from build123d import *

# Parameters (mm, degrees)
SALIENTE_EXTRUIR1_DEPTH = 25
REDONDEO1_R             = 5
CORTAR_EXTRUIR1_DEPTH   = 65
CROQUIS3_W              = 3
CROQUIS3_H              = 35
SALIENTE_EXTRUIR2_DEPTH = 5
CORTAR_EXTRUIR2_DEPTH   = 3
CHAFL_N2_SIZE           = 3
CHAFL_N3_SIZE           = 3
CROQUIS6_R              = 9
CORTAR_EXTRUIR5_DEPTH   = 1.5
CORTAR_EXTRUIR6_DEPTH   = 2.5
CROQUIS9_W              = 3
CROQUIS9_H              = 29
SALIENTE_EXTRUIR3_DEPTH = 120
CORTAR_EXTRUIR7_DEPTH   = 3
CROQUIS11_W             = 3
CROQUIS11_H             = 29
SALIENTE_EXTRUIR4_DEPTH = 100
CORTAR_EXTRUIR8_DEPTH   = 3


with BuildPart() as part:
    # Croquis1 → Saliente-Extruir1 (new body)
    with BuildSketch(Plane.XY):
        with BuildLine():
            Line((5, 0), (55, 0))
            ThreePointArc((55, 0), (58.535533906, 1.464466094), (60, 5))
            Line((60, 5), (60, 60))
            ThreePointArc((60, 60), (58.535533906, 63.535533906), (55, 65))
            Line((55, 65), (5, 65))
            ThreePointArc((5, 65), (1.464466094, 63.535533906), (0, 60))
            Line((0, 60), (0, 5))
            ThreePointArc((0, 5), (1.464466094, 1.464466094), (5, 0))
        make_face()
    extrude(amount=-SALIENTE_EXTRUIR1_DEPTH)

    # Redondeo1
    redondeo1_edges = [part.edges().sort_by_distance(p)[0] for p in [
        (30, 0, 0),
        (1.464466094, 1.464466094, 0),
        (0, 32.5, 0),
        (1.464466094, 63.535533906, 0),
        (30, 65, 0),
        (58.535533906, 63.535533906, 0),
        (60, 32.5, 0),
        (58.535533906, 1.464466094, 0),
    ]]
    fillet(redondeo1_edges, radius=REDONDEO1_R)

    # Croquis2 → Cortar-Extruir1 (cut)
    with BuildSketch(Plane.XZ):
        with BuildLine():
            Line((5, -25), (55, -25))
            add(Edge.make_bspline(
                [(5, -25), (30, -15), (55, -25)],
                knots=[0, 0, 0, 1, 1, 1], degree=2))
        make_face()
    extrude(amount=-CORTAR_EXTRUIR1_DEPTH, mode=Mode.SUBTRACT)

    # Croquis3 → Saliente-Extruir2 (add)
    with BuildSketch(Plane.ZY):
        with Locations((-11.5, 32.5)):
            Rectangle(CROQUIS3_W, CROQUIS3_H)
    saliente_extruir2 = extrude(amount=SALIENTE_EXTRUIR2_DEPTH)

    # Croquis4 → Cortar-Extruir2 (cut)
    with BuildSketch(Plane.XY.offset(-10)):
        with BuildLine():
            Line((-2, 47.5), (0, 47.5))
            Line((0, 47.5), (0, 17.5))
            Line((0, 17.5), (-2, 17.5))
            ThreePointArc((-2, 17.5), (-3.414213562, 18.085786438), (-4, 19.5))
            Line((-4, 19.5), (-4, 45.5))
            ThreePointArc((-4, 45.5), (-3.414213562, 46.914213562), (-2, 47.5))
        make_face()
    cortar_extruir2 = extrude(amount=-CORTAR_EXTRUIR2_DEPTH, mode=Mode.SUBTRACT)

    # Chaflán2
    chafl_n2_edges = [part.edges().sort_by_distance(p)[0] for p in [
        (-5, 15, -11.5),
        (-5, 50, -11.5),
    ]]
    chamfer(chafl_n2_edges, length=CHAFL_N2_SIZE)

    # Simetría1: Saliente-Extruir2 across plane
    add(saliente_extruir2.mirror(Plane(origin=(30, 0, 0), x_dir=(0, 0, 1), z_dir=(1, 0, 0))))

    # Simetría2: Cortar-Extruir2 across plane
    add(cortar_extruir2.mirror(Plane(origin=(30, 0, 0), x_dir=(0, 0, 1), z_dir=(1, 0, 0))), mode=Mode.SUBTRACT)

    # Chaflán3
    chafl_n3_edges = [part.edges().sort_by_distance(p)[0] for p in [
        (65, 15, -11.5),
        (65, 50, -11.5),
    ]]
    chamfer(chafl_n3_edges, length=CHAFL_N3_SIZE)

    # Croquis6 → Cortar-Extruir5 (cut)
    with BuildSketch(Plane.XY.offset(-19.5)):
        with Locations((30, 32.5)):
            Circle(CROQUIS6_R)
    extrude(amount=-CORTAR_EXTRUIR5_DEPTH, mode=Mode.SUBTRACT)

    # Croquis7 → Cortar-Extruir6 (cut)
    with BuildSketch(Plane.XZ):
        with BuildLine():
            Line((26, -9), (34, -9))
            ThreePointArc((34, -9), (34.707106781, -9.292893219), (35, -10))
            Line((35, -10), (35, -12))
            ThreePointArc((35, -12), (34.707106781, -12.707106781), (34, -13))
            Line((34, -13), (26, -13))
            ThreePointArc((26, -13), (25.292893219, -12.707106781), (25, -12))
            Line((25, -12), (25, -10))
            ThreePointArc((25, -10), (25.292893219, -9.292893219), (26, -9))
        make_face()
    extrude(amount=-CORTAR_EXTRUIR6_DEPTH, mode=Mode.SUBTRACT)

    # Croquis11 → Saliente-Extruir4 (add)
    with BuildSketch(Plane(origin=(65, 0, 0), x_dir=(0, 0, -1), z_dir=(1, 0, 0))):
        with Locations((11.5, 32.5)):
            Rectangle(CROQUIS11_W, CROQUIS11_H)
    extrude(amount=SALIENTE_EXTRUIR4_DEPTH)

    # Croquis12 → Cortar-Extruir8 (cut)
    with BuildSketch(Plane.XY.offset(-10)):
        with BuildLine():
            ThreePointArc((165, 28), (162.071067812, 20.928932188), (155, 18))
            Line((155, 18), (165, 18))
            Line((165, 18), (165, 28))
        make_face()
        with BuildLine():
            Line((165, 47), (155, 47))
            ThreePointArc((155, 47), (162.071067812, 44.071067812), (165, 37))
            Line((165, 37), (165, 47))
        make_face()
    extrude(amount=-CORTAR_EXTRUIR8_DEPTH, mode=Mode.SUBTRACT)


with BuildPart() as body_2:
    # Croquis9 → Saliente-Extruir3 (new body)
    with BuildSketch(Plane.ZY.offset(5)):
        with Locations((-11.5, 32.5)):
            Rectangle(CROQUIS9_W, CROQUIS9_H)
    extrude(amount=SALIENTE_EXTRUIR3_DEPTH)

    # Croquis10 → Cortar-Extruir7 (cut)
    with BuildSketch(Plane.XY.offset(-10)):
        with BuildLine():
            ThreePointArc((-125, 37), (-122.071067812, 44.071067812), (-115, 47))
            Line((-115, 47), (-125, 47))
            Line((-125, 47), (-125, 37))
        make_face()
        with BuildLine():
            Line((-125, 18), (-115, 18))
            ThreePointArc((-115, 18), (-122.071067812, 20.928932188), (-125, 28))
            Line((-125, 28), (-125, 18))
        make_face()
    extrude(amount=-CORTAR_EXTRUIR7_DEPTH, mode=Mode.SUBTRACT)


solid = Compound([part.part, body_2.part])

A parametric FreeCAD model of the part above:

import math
import FreeCAD as App
import Part
import Sketcher


def edges_at(feature, points):
    """Names of the edges that pass closest to the given points."""
    edges = feature.Shape.Edges
    near = lambda p: min(range(len(edges)), key=lambda i: edges[i].distToShape(Part.Vertex(*p))[0])
    return sorted({f"Edge{near(p) + 1}" for p in points})

doc = App.newDocument("Part")
body = doc.addObject("PartDesign::Body", "Body")

# Sketch on XY plane
sketch1 = doc.addObject("Sketcher::SketchObject", "Sketch")
body.addObject(sketch1)
sketch1.AttachmentSupport = (doc.XY_Plane, [""])
sketch1.MapMode = "FlatFace"
sketch1.addGeometry([
    Part.LineSegment(App.Vector(5, 0, 0), App.Vector(55, 0, 0)),  # 0
    Part.ArcOfCircle(Part.Circle(App.Vector(55, 5, 0), App.Vector(0, 0, 1), 5), math.radians(-90), math.radians(0)),  # 1
    Part.LineSegment(App.Vector(60, 5, 0), App.Vector(60, 60, 0)),  # 2
    Part.ArcOfCircle(Part.Circle(App.Vector(55, 60, 0), App.Vector(0, 0, 1), 5), math.radians(0), math.radians(90)),  # 3
    Part.LineSegment(App.Vector(55, 65, 0), App.Vector(5, 65, 0)),  # 4
    Part.ArcOfCircle(Part.Circle(App.Vector(5, 60, 0), App.Vector(0, 0, 1), 5), math.radians(90), math.radians(180)),  # 5
    Part.LineSegment(App.Vector(0, 60, 0), App.Vector(0, 5, 0)),  # 6
    Part.ArcOfCircle(Part.Circle(App.Vector(5, 5, 0), App.Vector(0, 0, 1), 5), math.radians(180), math.radians(270)),  # 7
], False)
sketch1.addConstraint([
    Sketcher.Constraint("Tangent", 0, 2, 1, 1),
    Sketcher.Constraint("Tangent", 1, 2, 2, 1),
    Sketcher.Constraint("Tangent", 2, 2, 3, 1),
    Sketcher.Constraint("Tangent", 3, 2, 4, 1),
    Sketcher.Constraint("Tangent", 4, 2, 5, 1),
    Sketcher.Constraint("Tangent", 5, 2, 6, 1),
    Sketcher.Constraint("Tangent", 6, 2, 7, 1),
    Sketcher.Constraint("Tangent", 7, 2, 0, 1),
    Sketcher.Constraint("Horizontal", 0),
    Sketcher.Constraint("Vertical", 2),
    Sketcher.Constraint("Horizontal", 4),
    Sketcher.Constraint("Vertical", 6),
    Sketcher.Constraint("Equal", 1, 3),
    Sketcher.Constraint("Equal", 3, 5),
    Sketcher.Constraint("Equal", 5, 7),
    Sketcher.Constraint("PointOnObject", 0, 2, -1),
    Sketcher.Constraint("PointOnObject", 5, 2, -2),
    Sketcher.Constraint("Radius", 1, 5.0),
    Sketcher.Constraint("DistanceX", 0, 1, 0, 2, 50.0),
    Sketcher.Constraint("DistanceY", 2, 1, 2, 2, 55.0),
])
pad1 = doc.addObject("PartDesign::Pad", "Pad")
body.addObject(pad1)
pad1.Profile = sketch1
pad1.Length = 25
pad1.Reversed = True
doc.recompute()

fillet = doc.addObject("PartDesign::Fillet", "Fillet")
body.addObject(fillet)
fillet.Base = (pad1, edges_at(pad1, [
    (30, 0, 0),
    (1.464, 1.464, 0),
    (0, 32.5, 0),
    (1.464, 63.536, 0),
    (30, 65, 0),
    (58.536, 63.536, 0),
    (60, 32.5, 0),
    (58.536, 1.464, 0),
]))
fillet.Radius = 5

# Sketch on XZ plane
sketch2 = doc.addObject("Sketcher::SketchObject", "Sketch001")
body.addObject(sketch2)
sketch2.AttachmentSupport = (doc.XZ_Plane, [""])
sketch2.MapMode = "FlatFace"
sketch2.addGeometry([
    Part.LineSegment(App.Vector(5, -25, 0), App.Vector(55, -25, 0)),
    Part.BSplineCurve([App.Vector(5, -25, 0), App.Vector(30, -15, 0), App.Vector(55, -25, 0)], [3, 3], [0, 1], False, 2, [1, 1, 1], False),
], False)
sketch2.addConstraint([
    Sketcher.Constraint("Block", 1),
    Sketcher.Constraint("Coincident", 0, 1, 1, 1),
    Sketcher.Constraint("Coincident", 1, 2, 0, 2),
])
pocket1 = doc.addObject("PartDesign::Pocket", "Pocket")
body.addObject(pocket1)
pocket1.Profile = sketch2
pocket1.Length = 65

# Sketch on YZ plane
sketch3 = doc.addObject("Sketcher::SketchObject", "Sketch002")
body.addObject(sketch3)
sketch3.AttachmentSupport = (doc.YZ_Plane, [""])
sketch3.MapMode = "FlatFace"
sketch3.addGeometry([
    Part.LineSegment(App.Vector(50, -13, 0), App.Vector(15, -13, 0)),
    Part.LineSegment(App.Vector(15, -13, 0), App.Vector(15, -10, 0)),
    Part.LineSegment(App.Vector(15, -10, 0), App.Vector(50, -10, 0)),
    Part.LineSegment(App.Vector(50, -10, 0), App.Vector(50, -13, 0)),
], False)
sketch3.addConstraint([
    Sketcher.Constraint("Coincident", 0, 2, 1, 1),
    Sketcher.Constraint("Coincident", 1, 2, 2, 1),
    Sketcher.Constraint("Coincident", 2, 2, 3, 1),
    Sketcher.Constraint("Coincident", 3, 2, 0, 1),
    Sketcher.Constraint("Horizontal", 0),
    Sketcher.Constraint("Vertical", 1),
    Sketcher.Constraint("Horizontal", 2),
    Sketcher.Constraint("Vertical", 3),
    Sketcher.Constraint("DistanceX", 0, 2, 0, 1, 35.0),
    Sketcher.Constraint("DistanceY", 1, 1, 1, 2, 3.0),
    Sketcher.Constraint("DistanceX", -1, 1, 0, 2, 15.0),
    Sketcher.Constraint("DistanceY", 0, 2, -1, 1, 13.0),
])
pad2 = doc.addObject("PartDesign::Pad", "Pad001")
body.addObject(pad2)
pad2.Profile = sketch3
pad2.Length = 5
pad2.Reversed = True

# Sketch on XY plane
sketch4 = doc.addObject("Sketcher::SketchObject", "Sketch003")
body.addObject(sketch4)
sketch4.AttachmentSupport = (doc.XY_Plane, [""])
sketch4.MapMode = "FlatFace"
sketch4.AttachmentOffset = App.Placement(App.Vector(0, 0, -10), App.Rotation())
sketch4.addGeometry([
    Part.LineSegment(App.Vector(0, 47.5, 0), App.Vector(-2, 47.5, 0)),  # 0
    Part.ArcOfCircle(Part.Circle(App.Vector(-2, 45.5, 0), App.Vector(0, 0, 1), 2), math.radians(90), math.radians(180)),  # 1
    Part.LineSegment(App.Vector(-4, 45.5, 0), App.Vector(-4, 19.5, 0)),  # 2
    Part.ArcOfCircle(Part.Circle(App.Vector(-2, 19.5, 0), App.Vector(0, 0, 1), 2), math.radians(-180), math.radians(-90)),  # 3
    Part.LineSegment(App.Vector(-2, 17.5, 0), App.Vector(0, 17.5, 0)),  # 4
    Part.LineSegment(App.Vector(0, 17.5, 0), App.Vector(0, 47.5, 0)),  # 5
], False)
sketch4.addConstraint([
    Sketcher.Constraint("Tangent", 0, 2, 1, 1),
    Sketcher.Constraint("Tangent", 1, 2, 2, 1),
    Sketcher.Constraint("Tangent", 2, 2, 3, 1),
    Sketcher.Constraint("Tangent", 3, 2, 4, 1),
    Sketcher.Constraint("Coincident", 4, 2, 5, 1),
    Sketcher.Constraint("Coincident", 5, 2, 0, 1),
    Sketcher.Constraint("Horizontal", 0),
    Sketcher.Constraint("Vertical", 2),
    Sketcher.Constraint("Horizontal", 4),
    Sketcher.Constraint("Vertical", 5),
    Sketcher.Constraint("Equal", 1, 3),
    Sketcher.Constraint("PointOnObject", 4, 2, -2),
    Sketcher.Constraint("Radius", 1, 2.0),
    Sketcher.Constraint("DistanceX", 0, 2, 0, 1, 2.0),
    Sketcher.Constraint("DistanceY", 2, 2, 2, 1, 26.0),
    Sketcher.Constraint("DistanceY", -1, 1, 1, 3, 45.5),
])
pocket2 = doc.addObject("PartDesign::Pocket", "Pocket001")
body.addObject(pocket2)
pocket2.Profile = sketch4
pocket2.Length = 3
doc.recompute()

chamfer = doc.addObject("PartDesign::Chamfer", "Chamfer")
body.addObject(chamfer)
chamfer.Base = (pocket2, edges_at(pocket2, [(-5, 15, -11.5), (-5, 50, -11.5)]))
chamfer.Size = 3
doc.recompute()

datumplane = doc.addObject("PartDesign::Plane", "DatumPlane")
body.addObject(datumplane)
datumplane.AttachmentSupport = (doc.YZ_Plane, [""])
datumplane.MapMode = "FlatFace"
datumplane.AttachmentOffset = App.Placement(App.Vector(0, 0, 30), App.Rotation())
mirrored = doc.addObject("PartDesign::Mirrored", "Mirrored")
body.addObject(mirrored)
mirrored.Originals = [pad2]
mirrored.MirrorPlane = (datumplane, [""])
body.Tip = mirrored
doc.recompute()

datumplane2 = doc.addObject("PartDesign::Plane", "DatumPlane001")
body.addObject(datumplane2)
datumplane2.AttachmentSupport = (doc.YZ_Plane, [""])
datumplane2.MapMode = "FlatFace"
datumplane2.AttachmentOffset = App.Placement(App.Vector(0, 0, 30), App.Rotation())
mirrored2 = doc.addObject("PartDesign::Mirrored", "Mirrored001")
body.addObject(mirrored2)
mirrored2.Originals = [pocket2]
mirrored2.MirrorPlane = (datumplane2, [""])
body.Tip = mirrored2
doc.recompute()

chamfer2 = doc.addObject("PartDesign::Chamfer", "Chamfer001")
body.addObject(chamfer2)
chamfer2.Base = (mirrored2, edges_at(mirrored2, [(65, 15, -11.5), (65, 50, -11.5)]))
chamfer2.Size = 3

# Sketch on XY plane
sketch5 = doc.addObject("Sketcher::SketchObject", "Sketch004")
body.addObject(sketch5)
sketch5.AttachmentSupport = (doc.XY_Plane, [""])
sketch5.MapMode = "FlatFace"
sketch5.AttachmentOffset = App.Placement(App.Vector(0, 0, -19.5), App.Rotation())
sketch5.addGeometry(Part.Circle(App.Vector(30, 32, 0), App.Vector(0, 0, 1), 9), False)
sketch5.addConstraint([
    Sketcher.Constraint("Diameter", 0, 18.0),
    Sketcher.Constraint("DistanceX", -1, 1, 0, 3, 30.0),
    Sketcher.Constraint("DistanceY", -1, 1, 0, 3, 32.5),
])
pocket3 = doc.addObject("PartDesign::Pocket", "Pocket002")
body.addObject(pocket3)
pocket3.Profile = sketch5
pocket3.Length = 1.5

# Sketch on XZ plane
sketch6 = doc.addObject("Sketcher::SketchObject", "Sketch005")
body.addObject(sketch6)
sketch6.AttachmentSupport = (doc.XZ_Plane, [""])
sketch6.MapMode = "FlatFace"
sketch6.addGeometry([
    Part.LineSegment(App.Vector(34, -9, 0), App.Vector(26, -9, 0)),  # 0
    Part.ArcOfCircle(Part.Circle(App.Vector(26, -10, 0), App.Vector(0, 0, 1), 1), math.radians(90), math.radians(180)),  # 1
    Part.LineSegment(App.Vector(25, -10, 0), App.Vector(25, -12, 0)),  # 2
    Part.ArcOfCircle(Part.Circle(App.Vector(26, -12, 0), App.Vector(0, 0, 1), 1), math.radians(-180), math.radians(-90)),  # 3
    Part.LineSegment(App.Vector(26, -13, 0), App.Vector(34, -13, 0)),  # 4
    Part.ArcOfCircle(Part.Circle(App.Vector(34, -12, 0), App.Vector(0, 0, 1), 1), math.radians(-90), math.radians(0)),  # 5
    Part.LineSegment(App.Vector(35, -12, 0), App.Vector(35, -10, 0)),  # 6
    Part.ArcOfCircle(Part.Circle(App.Vector(34, -10, 0), App.Vector(0, 0, 1), 1), math.radians(0), math.radians(90)),  # 7
], False)
sketch6.addConstraint([
    Sketcher.Constraint("Tangent", 0, 2, 1, 1),
    Sketcher.Constraint("Tangent", 1, 2, 2, 1),
    Sketcher.Constraint("Tangent", 2, 2, 3, 1),
    Sketcher.Constraint("Tangent", 3, 2, 4, 1),
    Sketcher.Constraint("Tangent", 4, 2, 5, 1),
    Sketcher.Constraint("Tangent", 5, 2, 6, 1),
    Sketcher.Constraint("Tangent", 6, 2, 7, 1),
    Sketcher.Constraint("Tangent", 7, 2, 0, 1),
    Sketcher.Constraint("Horizontal", 0),
    Sketcher.Constraint("Vertical", 2),
    Sketcher.Constraint("Horizontal", 4),
    Sketcher.Constraint("Vertical", 6),
    Sketcher.Constraint("Equal", 1, 3),
    Sketcher.Constraint("Equal", 3, 5),
    Sketcher.Constraint("Equal", 5, 7),
    Sketcher.Constraint("Radius", 1, 1.0),
    Sketcher.Constraint("DistanceX", 0, 2, 0, 1, 8.0),
    Sketcher.Constraint("DistanceY", 2, 2, 2, 1, 2.0),
    Sketcher.Constraint("DistanceX", -1, 1, 1, 3, 26.0),
    Sketcher.Constraint("DistanceY", 1, 3, -1, 1, 10.0),
])
pocket4 = doc.addObject("PartDesign::Pocket", "Pocket003")
body.addObject(pocket4)
pocket4.Profile = sketch6
pocket4.Length = 2.5

# Sketch on YZ plane
sketch7 = doc.addObject("Sketcher::SketchObject", "Sketch006")
body.addObject(sketch7)
sketch7.AttachmentSupport = (doc.YZ_Plane, [""])
sketch7.MapMode = "FlatFace"
sketch7.AttachmentOffset = App.Placement(App.Vector(0, 0, 65), App.Rotation())
sketch7.addGeometry([
    Part.LineSegment(App.Vector(47, -10, 0), App.Vector(18, -10, 0)),
    Part.LineSegment(App.Vector(18, -10, 0), App.Vector(18, -13, 0)),
    Part.LineSegment(App.Vector(18, -13, 0), App.Vector(47, -13, 0)),
    Part.LineSegment(App.Vector(47, -13, 0), App.Vector(47, -10, 0)),
], False)
sketch7.addConstraint([
    Sketcher.Constraint("Coincident", 0, 2, 1, 1),
    Sketcher.Constraint("Coincident", 1, 2, 2, 1),
    Sketcher.Constraint("Coincident", 2, 2, 3, 1),
    Sketcher.Constraint("Coincident", 3, 2, 0, 1),
    Sketcher.Constraint("Horizontal", 0),
    Sketcher.Constraint("Vertical", 1),
    Sketcher.Constraint("Horizontal", 2),
    Sketcher.Constraint("Vertical", 3),
    Sketcher.Constraint("DistanceX", 0, 2, 0, 1, 29.0),
    Sketcher.Constraint("DistanceY", 1, 2, 1, 1, 3.0),
    Sketcher.Constraint("DistanceX", -1, 1, 0, 2, 18.0),
    Sketcher.Constraint("DistanceY", 0, 2, -1, 1, 10.0),
])
pad3 = doc.addObject("PartDesign::Pad", "Pad002")
body.addObject(pad3)
pad3.Profile = sketch7
pad3.Length = 100

# Sketch on XY plane
sketch8 = doc.addObject("Sketcher::SketchObject", "Sketch007")
body.addObject(sketch8)
sketch8.AttachmentSupport = (doc.XY_Plane, [""])
sketch8.MapMode = "FlatFace"
sketch8.AttachmentOffset = App.Placement(App.Vector(0, 0, -10), App.Rotation())
sketch8.addGeometry([
    Part.ArcOfCircle(Part.Circle(App.Vector(155, 28, 0), App.Vector(0, 0, 1), 10), math.radians(-90), math.radians(0)),  # 0
    Part.LineSegment(App.Vector(155, 18, 0), App.Vector(165, 18, 0)),  # 1
    Part.LineSegment(App.Vector(165, 18, 0), App.Vector(165, 28, 0)),  # 2
    Part.LineSegment(App.Vector(165, 47, 0), App.Vector(155, 47, 0)),  # 3
    Part.ArcOfCircle(Part.Circle(App.Vector(155, 37, 0), App.Vector(0, 0, 1), 10), math.radians(0), math.radians(90)),  # 4
    Part.LineSegment(App.Vector(165, 37, 0), App.Vector(165, 47, 0)),  # 5
], False)
sketch8.addConstraint([
    Sketcher.Constraint("Tangent", 0, 1, 1, 1),
    Sketcher.Constraint("Coincident", 1, 2, 2, 1),
    Sketcher.Constraint("Tangent", 2, 2, 0, 2),
    Sketcher.Constraint("Tangent", 3, 2, 4, 2),
    Sketcher.Constraint("Tangent", 4, 1, 5, 1),
    Sketcher.Constraint("Coincident", 5, 2, 3, 1),
    Sketcher.Constraint("Horizontal", 1),
    Sketcher.Constraint("Vertical", 2),
    Sketcher.Constraint("Horizontal", 3),
    Sketcher.Constraint("Vertical", 5),
    Sketcher.Constraint("Equal", 0, 4),
    Sketcher.Constraint("Vertical", 0, 3, 4, 3),
    Sketcher.Constraint("Radius", 0, 10.0),
    Sketcher.Constraint("DistanceX", -1, 1, 0, 3, 155.0),
    Sketcher.Constraint("DistanceY", -1, 1, 0, 3, 28.0),
    Sketcher.Constraint("DistanceY", -1, 1, 4, 3, 37.0),
])
pocket5 = doc.addObject("PartDesign::Pocket", "Pocket004")
body.addObject(pocket5)
pocket5.Profile = sketch8
pocket5.Length = 3
body2 = doc.addObject("PartDesign::Body", "Body001")

# Sketch on YZ plane
sketch9 = doc.addObject("Sketcher::SketchObject", "Sketch008")
body2.addObject(sketch9)
sketch9.AttachmentSupport = (doc.getObject("YZ_Plane001"), [""])
sketch9.MapMode = "FlatFace"
sketch9.AttachmentOffset = App.Placement(App.Vector(0, 0, -5), App.Rotation())
sketch9.addGeometry([
    Part.LineSegment(App.Vector(47, -13, 0), App.Vector(18, -13, 0)),
    Part.LineSegment(App.Vector(18, -13, 0), App.Vector(18, -10, 0)),
    Part.LineSegment(App.Vector(18, -10, 0), App.Vector(47, -10, 0)),
    Part.LineSegment(App.Vector(47, -10, 0), App.Vector(47, -13, 0)),
], False)
sketch9.addConstraint([
    Sketcher.Constraint("Coincident", 0, 2, 1, 1),
    Sketcher.Constraint("Coincident", 1, 2, 2, 1),
    Sketcher.Constraint("Coincident", 2, 2, 3, 1),
    Sketcher.Constraint("Coincident", 3, 2, 0, 1),
    Sketcher.Constraint("Horizontal", 0),
    Sketcher.Constraint("Vertical", 1),
    Sketcher.Constraint("Horizontal", 2),
    Sketcher.Constraint("Vertical", 3),
    Sketcher.Constraint("DistanceX", 0, 2, 0, 1, 29.0),
    Sketcher.Constraint("DistanceY", 1, 1, 1, 2, 3.0),
    Sketcher.Constraint("DistanceX", -1, 1, 0, 2, 18.0),
    Sketcher.Constraint("DistanceY", 0, 2, -1, 1, 13.0),
])
pad4 = doc.addObject("PartDesign::Pad", "Pad003")
body2.addObject(pad4)
pad4.Profile = sketch9
pad4.Length = 120
pad4.Reversed = True

# Sketch on XY plane
sketch10 = doc.addObject("Sketcher::SketchObject", "Sketch009")
body2.addObject(sketch10)
sketch10.AttachmentSupport = (doc.getObject("XY_Plane001"), [""])
sketch10.MapMode = "FlatFace"
sketch10.AttachmentOffset = App.Placement(App.Vector(0, 0, -10), App.Rotation())
sketch10.addGeometry([
    Part.ArcOfCircle(Part.Circle(App.Vector(-115, 37, 0), App.Vector(0, 0, 1), 10), math.radians(90), math.radians(180)),  # 0
    Part.LineSegment(App.Vector(-115, 47, 0), App.Vector(-125, 47, 0)),  # 1
    Part.LineSegment(App.Vector(-125, 47, 0), App.Vector(-125, 37, 0)),  # 2
    Part.LineSegment(App.Vector(-125, 18, 0), App.Vector(-115, 18, 0)),  # 3
    Part.ArcOfCircle(Part.Circle(App.Vector(-115, 28, 0), App.Vector(0, 0, 1), 10), math.radians(180), math.radians(270)),  # 4
    Part.LineSegment(App.Vector(-125, 28, 0), App.Vector(-125, 18, 0)),  # 5
], False)
sketch10.addConstraint([
    Sketcher.Constraint("Tangent", 0, 1, 1, 1),
    Sketcher.Constraint("Coincident", 1, 2, 2, 1),
    Sketcher.Constraint("Tangent", 2, 2, 0, 2),
    Sketcher.Constraint("Tangent", 3, 2, 4, 2),
    Sketcher.Constraint("Tangent", 4, 1, 5, 1),
    Sketcher.Constraint("Coincident", 5, 2, 3, 1),
    Sketcher.Constraint("Horizontal", 1),
    Sketcher.Constraint("Vertical", 2),
    Sketcher.Constraint("Horizontal", 3),
    Sketcher.Constraint("Vertical", 5),
    Sketcher.Constraint("Equal", 0, 4),
    Sketcher.Constraint("Vertical", 0, 3, 4, 3),
    Sketcher.Constraint("Radius", 0, 10.0),
    Sketcher.Constraint("DistanceX", 0, 3, -1, 1, 115.0),
    Sketcher.Constraint("DistanceY", -1, 1, 0, 3, 37.0),
    Sketcher.Constraint("DistanceY", -1, 1, 4, 3, 28.0),
])
pocket6 = doc.addObject("PartDesign::Pocket", "Pocket005")
body2.addObject(pocket6)
pocket6.Profile = sketch10
pocket6.Length = 3

doc.recompute()
